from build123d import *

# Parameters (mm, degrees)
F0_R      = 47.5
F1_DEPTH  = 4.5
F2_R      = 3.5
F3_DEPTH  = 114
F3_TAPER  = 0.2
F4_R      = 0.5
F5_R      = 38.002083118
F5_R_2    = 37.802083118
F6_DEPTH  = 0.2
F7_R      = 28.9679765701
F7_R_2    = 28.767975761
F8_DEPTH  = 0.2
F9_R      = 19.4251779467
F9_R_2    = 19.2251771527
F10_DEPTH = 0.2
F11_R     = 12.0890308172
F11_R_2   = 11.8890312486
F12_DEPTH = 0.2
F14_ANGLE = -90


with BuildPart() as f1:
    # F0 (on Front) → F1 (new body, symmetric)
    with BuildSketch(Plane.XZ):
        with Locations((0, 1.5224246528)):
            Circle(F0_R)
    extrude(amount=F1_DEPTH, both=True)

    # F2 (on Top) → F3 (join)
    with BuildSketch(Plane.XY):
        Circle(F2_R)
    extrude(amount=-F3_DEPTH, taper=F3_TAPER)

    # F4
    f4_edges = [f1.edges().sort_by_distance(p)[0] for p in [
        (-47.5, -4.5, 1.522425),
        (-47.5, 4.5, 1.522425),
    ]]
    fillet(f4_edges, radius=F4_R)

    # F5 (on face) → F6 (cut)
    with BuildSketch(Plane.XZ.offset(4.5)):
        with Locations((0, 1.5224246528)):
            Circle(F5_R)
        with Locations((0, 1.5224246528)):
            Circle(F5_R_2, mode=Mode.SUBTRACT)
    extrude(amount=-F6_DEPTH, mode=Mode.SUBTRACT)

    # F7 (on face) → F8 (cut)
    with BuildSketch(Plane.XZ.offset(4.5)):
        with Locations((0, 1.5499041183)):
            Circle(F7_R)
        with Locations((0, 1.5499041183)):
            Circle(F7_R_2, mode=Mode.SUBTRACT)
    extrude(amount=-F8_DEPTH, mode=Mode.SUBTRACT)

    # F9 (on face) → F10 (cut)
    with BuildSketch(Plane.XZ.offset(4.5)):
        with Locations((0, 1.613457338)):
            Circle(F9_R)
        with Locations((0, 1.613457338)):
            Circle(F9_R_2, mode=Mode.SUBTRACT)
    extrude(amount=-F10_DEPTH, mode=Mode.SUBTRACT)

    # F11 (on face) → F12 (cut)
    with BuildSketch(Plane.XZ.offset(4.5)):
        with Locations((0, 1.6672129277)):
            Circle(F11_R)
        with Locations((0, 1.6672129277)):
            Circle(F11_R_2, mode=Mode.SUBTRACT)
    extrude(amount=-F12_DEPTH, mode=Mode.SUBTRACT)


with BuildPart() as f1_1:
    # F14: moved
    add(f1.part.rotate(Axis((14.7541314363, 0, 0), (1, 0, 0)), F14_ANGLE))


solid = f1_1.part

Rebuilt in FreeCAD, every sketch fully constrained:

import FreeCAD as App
import Part
import Sketcher

V = App.Vector


def edges_at(feature, points):
    """Names of the edges that pass closest to the given points."""
    edges = feature.Shape.Edges
    near = lambda p: min(range(len(edges)), key=lambda i: edges[i].distToShape(Part.Vertex(*p))[0])
    return sorted({f"Edge{near(p) + 1}" for p in points})

doc = App.newDocument("Part")
body = doc.addObject("PartDesign::Body", "Body")

# Sketch on XZ plane
sketch1 = doc.addObject("Sketcher::SketchObject", "Sketch")
body.addObject(sketch1)
sketch1.AttachmentSupport = (doc.XZ_Plane, [""])
sketch1.MapMode = "FlatFace"
sketch1.addGeometry(Part.Circle(V(0, 2, 0), V(0, 0, 1), 48), False)
sketch1.addConstraint([
    Sketcher.Constraint("PointOnObject", 0, 3, -2),
    Sketcher.Constraint("Diameter", 0, 95.0),
    Sketcher.Constraint("DistanceY", -1, 1, 0, 3, 1.522425),
])
pad1 = doc.addObject("PartDesign::Pad", "Pad")
body.addObject(pad1)
pad1.Profile = sketch1
pad1.Length = 9
pad1.Midplane = True

# Sketch on XY plane
sketch2 = doc.addObject("Sketcher::SketchObject", "Sketch001")
body.addObject(sketch2)
sketch2.AttachmentSupport = (doc.XY_Plane, [""])
sketch2.MapMode = "FlatFace"
sketch2.addGeometry(Part.Circle(V(0, 0, 0), V(0, 0, 1), 3.5), False)
sketch2.addConstraint([
    Sketcher.Constraint("Coincident", 0, 3, -1, 1),
    Sketcher.Constraint("Diameter", 0, 7.0),
])
pad2 = doc.addObject("PartDesign::Pad", "Pad001")
body.addObject(pad2)
pad2.Profile = sketch2
pad2.Length = 114
pad2.Reversed = True
pad2.TaperAngle = -0.2
doc.recompute()

fillet = doc.addObject("PartDesign::Fillet", "Fillet")
body.addObject(fillet)
fillet.Base = (pad2, edges_at(pad2, [(-47.5, -4.5, 1.522), (-47.5, 4.5, 1.522)]))
fillet.Radius = 0.5

# Sketch on XZ plane
sketch3 = doc.addObject("Sketcher::SketchObject", "Sketch002")
body.addObject(sketch3)
sketch3.AttachmentSupport = (doc.XZ_Plane, [""])
sketch3.MapMode = "FlatFace"
sketch3.AttachmentOffset = App.Placement(V(0, 0, 4.5), App.Rotation())
sketch3.addGeometry([
    Part.Circle(V(0, 2, 0), V(0, 0, 1), 38),
    Part.Circle(V(0, 2, 0), V(0, 0, 1), 38),
], False)
sketch3.addConstraint([
    Sketcher.Constraint("Coincident", 1, 3, 0, 3),
    Sketcher.Constraint("PointOnObject", 0, 3, -2),
    Sketcher.Constraint("Diameter", 0, 76.004166),
    Sketcher.Constraint("Diameter", 1, 75.604166),
    Sketcher.Constraint("DistanceY", -1, 1, 0, 3, 1.522425),
])
pocket1 = doc.addObject("PartDesign::Pocket", "Pocket")
body.addObject(pocket1)
pocket1.Profile = sketch3
pocket1.Length = 0.2

# Sketch on XZ plane
sketch4 = doc.addObject("Sketcher::SketchObject", "Sketch003")
body.addObject(sketch4)
sketch4.AttachmentSupport = (doc.XZ_Plane, [""])
sketch4.MapMode = "FlatFace"
sketch4.AttachmentOffset = App.Placement(V(0, 0, 4.5), App.Rotation())
sketch4.addGeometry([
    Part.Circle(V(0, 2, 0), V(0, 0, 1), 29),
    Part.Circle(V(0, 2, 0), V(0, 0, 1), 29),
], False)
sketch4.addConstraint([
    Sketcher.Constraint("Coincident", 1, 3, 0, 3),
    Sketcher.Constraint("PointOnObject", 0, 3, -2),
    Sketcher.Constraint("Diameter", 1, 57.535952),
    Sketcher.Constraint("Diameter", 0, 57.935953),
    Sketcher.Constraint("DistanceY", -1, 1, 0, 3, 1.549904),
])
pocket2 = doc.addObject("PartDesign::Pocket", "Pocket001")
body.addObject(pocket2)
pocket2.Profile = sketch4
pocket2.Length = 0.2

# Sketch on XZ plane
sketch5 = doc.addObject("Sketcher::SketchObject", "Sketch004")
body.addObject(sketch5)
sketch5.AttachmentSupport = (doc.XZ_Plane, [""])
sketch5.MapMode = "FlatFace"
sketch5.AttachmentOffset = App.Placement(V(0, 0, 4.5), App.Rotation())
sketch5.addGeometry([
    Part.Circle(V(0, 2, 0), V(0, 0, 1), 19),
    Part.Circle(V(0, 2, 0), V(0, 0, 1), 19),
], False)
sketch5.addConstraint([
    Sketcher.Constraint("Coincident", 1, 3, 0, 3),
    Sketcher.Constraint("PointOnObject", 0, 3, -2),
    Sketcher.Constraint("Diameter", 0, 38.850356),
    Sketcher.Constraint("Diameter", 1, 38.450354),
    Sketcher.Constraint("DistanceY", -1, 1, 0, 3, 1.613457),
])
pocket3 = doc.addObject("PartDesign::Pocket", "Pocket002")
body.addObject(pocket3)
pocket3.Profile = sketch5
pocket3.Length = 0.2

# Sketch on XZ plane
sketch6 = doc.addObject("Sketcher::SketchObject", "Sketch005")
body.addObject(sketch6)
sketch6.AttachmentSupport = (doc.XZ_Plane, [""])
sketch6.MapMode = "FlatFace"
sketch6.AttachmentOffset = App.Placement(V(0, 0, 4.5), App.Rotation())
sketch6.addGeometry([
    Part.Circle(V(0, 2, 0), V(0, 0, 1), 12),
    Part.Circle(V(0, 2, 0), V(0, 0, 1), 12),
], False)
sketch6.addConstraint([
    Sketcher.Constraint("Coincident", 1, 3, 0, 3),
    Sketcher.Constraint("PointOnObject", 0, 3, -2),
    Sketcher.Constraint("Diameter", 0, 24.178062),
    Sketcher.Constraint("Diameter", 1, 23.778062),
    Sketcher.Constraint("DistanceY", -1, 1, 0, 3, 1.667213),
])
pocket4 = doc.addObject("PartDesign::Pocket", "Pocket003")
body.addObject(pocket4)
pocket4.Profile = sketch6
pocket4.Length = 0.2
body2 = doc.addObject("PartDesign::Body", "Body001")
doc.recompute()

body.Placement = App.Placement(V(0, 0, 0), App.Rotation(V(1, 0, 0), 270))
boolean = doc.addObject("PartDesign::Boolean", "Boolean")
body2.addObject(boolean)
boolean.Type = "Fuse"
boolean.addObjects([body])

doc.recompute()
